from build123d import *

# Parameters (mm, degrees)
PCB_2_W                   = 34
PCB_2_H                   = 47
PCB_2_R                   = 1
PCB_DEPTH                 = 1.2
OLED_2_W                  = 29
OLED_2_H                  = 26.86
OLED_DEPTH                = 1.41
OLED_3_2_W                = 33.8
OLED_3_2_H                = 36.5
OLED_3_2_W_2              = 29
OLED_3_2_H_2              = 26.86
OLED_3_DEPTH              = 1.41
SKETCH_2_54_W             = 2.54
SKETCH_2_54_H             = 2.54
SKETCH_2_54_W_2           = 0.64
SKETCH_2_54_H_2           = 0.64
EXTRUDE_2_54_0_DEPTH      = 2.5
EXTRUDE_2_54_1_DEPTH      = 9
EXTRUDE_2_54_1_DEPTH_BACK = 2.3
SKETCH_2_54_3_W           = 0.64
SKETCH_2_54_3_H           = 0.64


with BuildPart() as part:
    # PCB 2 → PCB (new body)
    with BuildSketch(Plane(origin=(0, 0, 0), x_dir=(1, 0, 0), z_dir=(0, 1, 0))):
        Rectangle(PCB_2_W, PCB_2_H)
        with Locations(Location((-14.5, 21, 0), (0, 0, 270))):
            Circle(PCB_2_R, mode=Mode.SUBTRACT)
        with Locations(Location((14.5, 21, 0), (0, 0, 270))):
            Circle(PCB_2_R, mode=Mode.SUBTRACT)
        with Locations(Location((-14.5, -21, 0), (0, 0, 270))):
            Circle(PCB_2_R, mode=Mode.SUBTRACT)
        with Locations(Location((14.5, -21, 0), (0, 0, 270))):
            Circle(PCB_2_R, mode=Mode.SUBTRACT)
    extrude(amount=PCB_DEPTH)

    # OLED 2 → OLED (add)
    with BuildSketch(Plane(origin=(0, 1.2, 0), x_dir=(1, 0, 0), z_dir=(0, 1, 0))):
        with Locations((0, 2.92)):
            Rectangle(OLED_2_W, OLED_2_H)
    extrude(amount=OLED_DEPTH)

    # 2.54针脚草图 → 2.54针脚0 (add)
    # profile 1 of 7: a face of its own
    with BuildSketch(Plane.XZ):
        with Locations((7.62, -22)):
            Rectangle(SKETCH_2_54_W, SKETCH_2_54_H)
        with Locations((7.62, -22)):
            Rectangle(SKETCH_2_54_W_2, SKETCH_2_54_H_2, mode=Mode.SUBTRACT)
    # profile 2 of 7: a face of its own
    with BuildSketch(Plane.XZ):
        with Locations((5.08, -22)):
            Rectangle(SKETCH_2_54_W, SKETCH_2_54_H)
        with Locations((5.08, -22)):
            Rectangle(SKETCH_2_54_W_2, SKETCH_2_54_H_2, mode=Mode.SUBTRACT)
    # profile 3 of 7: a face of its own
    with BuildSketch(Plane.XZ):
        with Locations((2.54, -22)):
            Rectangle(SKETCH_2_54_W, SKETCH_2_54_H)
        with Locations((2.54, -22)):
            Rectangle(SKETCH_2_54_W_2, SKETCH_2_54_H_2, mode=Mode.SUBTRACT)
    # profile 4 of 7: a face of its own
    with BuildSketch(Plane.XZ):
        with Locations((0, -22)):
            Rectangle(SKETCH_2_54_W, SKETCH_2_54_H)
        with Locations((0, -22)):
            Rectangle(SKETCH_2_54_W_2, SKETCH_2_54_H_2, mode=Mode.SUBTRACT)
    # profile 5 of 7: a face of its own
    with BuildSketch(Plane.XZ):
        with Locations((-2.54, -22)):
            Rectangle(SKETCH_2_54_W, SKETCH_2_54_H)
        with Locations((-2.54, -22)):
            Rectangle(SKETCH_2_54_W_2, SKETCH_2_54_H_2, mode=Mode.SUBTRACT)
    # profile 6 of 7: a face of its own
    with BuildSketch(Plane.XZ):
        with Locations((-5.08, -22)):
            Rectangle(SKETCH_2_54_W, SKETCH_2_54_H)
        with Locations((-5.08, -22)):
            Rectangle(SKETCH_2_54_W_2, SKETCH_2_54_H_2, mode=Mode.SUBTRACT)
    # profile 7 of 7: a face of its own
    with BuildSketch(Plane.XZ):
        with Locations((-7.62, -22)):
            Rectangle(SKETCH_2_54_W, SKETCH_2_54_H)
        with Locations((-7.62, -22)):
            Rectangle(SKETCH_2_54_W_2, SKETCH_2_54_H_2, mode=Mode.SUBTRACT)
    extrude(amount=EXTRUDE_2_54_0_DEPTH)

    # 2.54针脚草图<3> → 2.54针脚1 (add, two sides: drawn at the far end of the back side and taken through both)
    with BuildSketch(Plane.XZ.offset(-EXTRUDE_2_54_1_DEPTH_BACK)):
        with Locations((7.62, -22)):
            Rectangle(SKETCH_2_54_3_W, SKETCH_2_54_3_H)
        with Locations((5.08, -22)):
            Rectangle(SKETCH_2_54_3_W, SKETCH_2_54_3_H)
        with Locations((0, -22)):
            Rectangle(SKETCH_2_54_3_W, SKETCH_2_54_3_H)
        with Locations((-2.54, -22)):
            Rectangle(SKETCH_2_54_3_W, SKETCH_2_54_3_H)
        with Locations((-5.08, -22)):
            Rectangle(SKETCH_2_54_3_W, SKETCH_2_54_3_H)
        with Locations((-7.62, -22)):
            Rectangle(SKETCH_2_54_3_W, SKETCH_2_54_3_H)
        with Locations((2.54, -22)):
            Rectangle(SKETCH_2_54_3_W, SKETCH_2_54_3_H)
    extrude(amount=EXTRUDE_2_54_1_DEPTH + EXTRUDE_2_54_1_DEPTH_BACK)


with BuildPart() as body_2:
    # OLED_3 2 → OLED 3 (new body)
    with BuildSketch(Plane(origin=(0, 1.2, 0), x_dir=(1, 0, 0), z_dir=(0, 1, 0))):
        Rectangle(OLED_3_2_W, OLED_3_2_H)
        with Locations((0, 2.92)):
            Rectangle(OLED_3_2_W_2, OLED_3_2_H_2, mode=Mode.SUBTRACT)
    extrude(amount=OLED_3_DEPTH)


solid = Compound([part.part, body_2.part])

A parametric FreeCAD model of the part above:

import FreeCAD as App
import Part
import Sketcher

V = App.Vector


def add_polygon(sketch, points):
    """Adds a closed chain of lines whose ends are joined by coincident constraints."""
    first, n = sketch.GeometryCount, len(points)
    for a, b in zip(points, points[1:] + points[:1]):
        sketch.addGeometry(Part.LineSegment(App.Vector(*a, 0), App.Vector(*b, 0)), False)
    for i in range(n):
        sketch.addConstraint(Sketcher.Constraint("Coincident", first + i, 2, first + (i + 1) % n, 1))

doc = App.newDocument("Part")
params = doc.addObject("Spreadsheet::Sheet", "Params")
for row, (alias, value) in enumerate([
    ("sketch1_diameter", "2 mm"),
    ("sketch1_width", "34 mm"),
    ("sketch1_height", "47 mm"),
    ("pad1_length", "1.2 mm"),
    ("sketch2_width", "29 mm"),
    ("sketch2_height", "26.86 mm"),
    ("pad2_length", "1.41 mm"),
    ("sketch3_width", "17.78 mm"),
    ("sketch3_width2", "0.64 mm"),
    ("sketch3_height", "2.54 mm"),
    ("pad3_length", "2.5 mm"),
    ("sketch4_width", "0.64 mm"),
    ("pad4_length", "9 mm"),
    ("pad4_length2", "2.3 mm"),
    ("sketch5_width", "29 mm"),
    ("sketch5_width2", "33.8 mm"),
    ("sketch5_height", "36.5 mm"),
    ("sketch5_height2", "26.86 mm"),
    ("pad5_length", "1.41 mm"),
], start=1):
    params.set(f"A{row}", alias)
    params.set(f"B{row}", "=" + value)
    params.setAlias(f"B{row}", alias)

body = doc.addObject("PartDesign::Body", "Body")

# Sketch on XZ plane
sketch1 = body.newObject("Sketcher::SketchObject", "Sketch")
sketch1.AttachmentSupport = (doc.getObject("XZ_Plane"), [""])
sketch1.MapMode = "FlatFace"
add_polygon(sketch1, [(-17, -23.5), (-17, 23.5), (17, 23.5), (17, -23.5)])  # lines 0-3
sketch1.addGeometry(Part.Circle(V(-14.5, 21, 0), V(0, 0, 1), 1), False)  # 4
sketch1.addGeometry(Part.Circle(V(14.5, 21, 0), V(0, 0, 1), 1), False)  # 5
sketch1.addGeometry(Part.Circle(V(-14.5, -21, 0), V(0, 0, 1), 1), False)  # 6
sketch1.addGeometry(Part.Circle(V(14.5, -21, 0), V(0, 0, 1), 1), False)  # 7
sketch1.addConstraint(Sketcher.Constraint("Vertical", 0))
sketch1.addConstraint(Sketcher.Constraint("Horizontal", 1))
sketch1.addConstraint(Sketcher.Constraint("Vertical", 2))
sketch1.addConstraint(Sketcher.Constraint("Horizontal", 3))
sketch1.addConstraint(Sketcher.Constraint("Equal", 4, 5))
sketch1.addConstraint(Sketcher.Constraint("Equal", 5, 6))
sketch1.addConstraint(Sketcher.Constraint("Equal", 6, 7))
sketch1.addConstraint(Sketcher.Constraint("Symmetric", 5, 3, 6, 3, -1, 1))
sketch1.addConstraint(Sketcher.Constraint("Symmetric", 4, 3, 7, 3, -1, 1))
sketch1.addConstraint(Sketcher.Constraint("Symmetric", 0, 2, 2, 2, -1, 1))
sketch1.addConstraint(Sketcher.Constraint("Symmetric", 4, 3, 5, 3, -2))
sketch1.addConstraint(Sketcher.Constraint("Diameter", 4, 2.0))
sketch1.addConstraint(Sketcher.Constraint("DistanceX", 1, 1, 1, 2, 34.0))
sketch1.addConstraint(Sketcher.Constraint("DistanceY", 0, 1, 0, 2, 47.0))
sketch1.addConstraint(Sketcher.Constraint("DistanceY", -1, 1, 4, 3, 21.0))
sketch1.addConstraint(Sketcher.Constraint("DistanceX", 4, 3, 5, 3, 29.0))
sketch1.setExpression("Constraints[15]", "Params.sketch1_diameter")
sketch1.setExpression("Constraints[16]", "Params.sketch1_width")
sketch1.setExpression("Constraints[17]", "Params.sketch1_height")
pad1 = body.newObject("PartDesign::Pad", "Pad")
pad1.Profile = sketch1
pad1.setExpression("Length", "Params.pad1_length")
pad1.Reversed = True

# Sketch on XZ plane
sketch2 = body.newObject("Sketcher::SketchObject", "Sketch001")
sketch2.AttachmentSupport = (doc.getObject("XZ_Plane"), [""])
sketch2.MapMode = "FlatFace"
sketch2.AttachmentOffset = App.Placement(V(0, 0, -1.2), App.Rotation())
add_polygon(sketch2, [(-14.5, -16.35), (-14.5, 10.51), (14.5, 10.51), (14.5, -16.35)])  # lines 0-3
sketch2.addConstraint(Sketcher.Constraint("Vertical", 0))
sketch2.addConstraint(Sketcher.Constraint("Horizontal", 1))
sketch2.addConstraint(Sketcher.Constraint("Vertical", 2))
sketch2.addConstraint(Sketcher.Constraint("Horizontal", 3))
sketch2.addConstraint(Sketcher.Constraint("DistanceX", 1, 1, 1, 2, 29.0))
sketch2.addConstraint(Sketcher.Constraint("DistanceY", 0, 1, 0, 2, 26.86))
sketch2.addConstraint(Sketcher.Constraint("DistanceX", 0, 2, -1, 1, 14.5))
sketch2.addConstraint(Sketcher.Constraint("DistanceY", -1, 1, 0, 2, 10.51))
sketch2.setExpression("Constraints[8]", "Params.sketch2_width")
sketch2.setExpression("Constraints[9]", "Params.sketch2_height")
pad2 = body.newObject("PartDesign::Pad", "Pad001")
pad2.Profile = sketch2
pad2.setExpression("Length", "Params.pad2_length")
pad2.Reversed = True

# Sketch on XZ plane
sketch3 = body.newObject("Sketcher::SketchObject", "Sketch002")
sketch3.AttachmentSupport = (doc.getObject("XZ_Plane"), [""])
sketch3.MapMode = "FlatFace"
add_polygon(sketch3, [(8.89, -23.27), (8.89, -20.73), (-8.89, -20.73), (-8.89, -23.27)])  # lines 0-3
add_polygon(sketch3, [(7.94, -22.32), (7.3, -22.32), (7.3, -21.68), (7.94, -21.68)])  # lines 4-7
add_polygon(sketch3, [(4.76, -22.32), (4.76, -21.68), (5.4, -21.68), (5.4, -22.32)])  # lines 8-11
add_polygon(sketch3, [(2.22, -22.32), (2.22, -21.68), (2.86, -21.68), (2.86, -22.32)])  # lines 12-15
add_polygon(sketch3, [(-0.32, -22.32), (-0.32, -21.68), (0.32, -21.68), (0.32, -22.32)])  # lines 16-19
add_polygon(sketch3, [(-2.86, -22.32), (-2.86, -21.68), (-2.22, -21.68), (-2.22, -22.32)])  # lines 20-23
add_polygon(sketch3, [(-5.4, -22.32), (-5.4, -21.68), (-4.76, -21.68), (-4.76, -22.32)])  # lines 24-27
add_polygon(sketch3, [(-7.94, -22.32), (-7.94, -21.68), (-7.3, -21.68), (-7.3, -22.32)])  # lines 28-31
sketch3.addConstraint(Sketcher.Constraint("Vertical", 0))
sketch3.addConstraint(Sketcher.Constraint("Horizontal", 1))
sketch3.addConstraint(Sketcher.Constraint("Vertical", 2))
sketch3.addConstraint(Sketcher.Constraint("Horizontal", 3))
sketch3.addConstraint(Sketcher.Constraint("Horizontal", 4))
sketch3.addConstraint(Sketcher.Constraint("Vertical", 5))
sketch3.addConstraint(Sketcher.Constraint("Horizontal", 6))
sketch3.addConstraint(Sketcher.Constraint("Vertical", 7))
sketch3.addConstraint(Sketcher.Constraint("Vertical", 8))
sketch3.addConstraint(Sketcher.Constraint("Horizontal", 9))
sketch3.addConstraint(Sketcher.Constraint("Vertical", 10))
sketch3.addConstraint(Sketcher.Constraint("Horizontal", 11))
sketch3.addConstraint(Sketcher.Constraint("Vertical", 12))
sketch3.addConstraint(Sketcher.Constraint("Horizontal", 13))
sketch3.addConstraint(Sketcher.Constraint("Vertical", 14))
sketch3.addConstraint(Sketcher.Constraint("Horizontal", 15))
sketch3.addConstraint(Sketcher.Constraint("Vertical", 16))
sketch3.addConstraint(Sketcher.Constraint("Horizontal", 17))
sketch3.addConstraint(Sketcher.Constraint("Vertical", 18))
sketch3.addConstraint(Sketcher.Constraint("Horizontal", 19))
sketch3.addConstraint(Sketcher.Constraint("Vertical", 20))
sketch3.addConstraint(Sketcher.Constraint("Horizontal", 21))
sketch3.addConstraint(Sketcher.Constraint("Vertical", 22))
sketch3.addConstraint(Sketcher.Constraint("Horizontal", 23))
sketch3.addConstraint(Sketcher.Constraint("Vertical", 24))
sketch3.addConstraint(Sketcher.Constraint("Horizontal", 25))
sketch3.addConstraint(Sketcher.Constraint("Vertical", 26))
sketch3.addConstraint(Sketcher.Constraint("Horizontal", 27))
sketch3.addConstraint(Sketcher.Constraint("Vertical", 28))
sketch3.addConstraint(Sketcher.Constraint("Horizontal", 29))
sketch3.addConstraint(Sketcher.Constraint("Vertical", 30))
sketch3.addConstraint(Sketcher.Constraint("Horizontal", 31))
sketch3.addConstraint(Sketcher.Constraint("Symmetric", 13, 2, 20, 2, -2))
sketch3.addConstraint(Sketcher.Constraint("Symmetric", 15, 2, 22, 2, -2))
sketch3.addConstraint(Sketcher.Constraint("Symmetric", 9, 2, 24, 2, -2))
sketch3.addConstraint(Sketcher.Constraint("Symmetric", 11, 2, 26, 2, -2))
sketch3.addConstraint(Sketcher.Constraint("Symmetric", 6, 2, 28, 2, -2))
sketch3.addConstraint(Sketcher.Constraint("Symmetric", 4, 2, 30, 2, -2))
sketch3.addConstraint(Sketcher.Constraint("Horizontal", 6, 2, 8, 2))
sketch3.addConstraint(Sketcher.Constraint("Horizontal", 7, 2, 10, 2))
sketch3.addConstraint(Sketcher.Constraint("Horizontal", 9, 2, 12, 2))
sketch3.addConstraint(Sketcher.Constraint("Horizontal", 11, 2, 14, 2))
sketch3.addConstraint(Sketcher.Constraint("Horizontal", 13, 2, 16, 2))
sketch3.addConstraint(Sketcher.Constraint("Horizontal", 15, 2, 18, 2))
sketch3.addConstraint(Sketcher.Constraint("Equal", 6, 9))
sketch3.addConstraint(Sketcher.Constraint("Equal", 11, 13))
sketch3.addConstraint(Sketcher.Constraint("Equal", 15, 17))
sketch3.addConstraint(Sketcher.Constraint("Equal", 31, 5))
sketch3.addConstraint(Sketcher.Constraint("DistanceX", 1, 2, 1, 1, 17.78))
sketch3.addConstraint(Sketcher.Constraint("DistanceX", 4, 2, 4, 1, 0.64))
sketch3.addConstraint(Sketcher.Constraint("DistanceY", 0, 1, 0, 2, 2.54))
sketch3.addConstraint(Sketcher.Constraint("DistanceX", -1, 1, 4, 2, 7.3))
sketch3.addConstraint(Sketcher.Constraint("DistanceX", -1, 1, 9, 2, 5.4))
sketch3.addConstraint(Sketcher.Constraint("DistanceX", 13, 2, 8, 2, 1.9))
sketch3.addConstraint(Sketcher.Constraint("DistanceX", 17, 2, 12, 2, 1.9))
sketch3.addConstraint(Sketcher.Constraint("DistanceX", -1, 1, 0, 2, 8.89))
sketch3.addConstraint(Sketcher.Constraint("DistanceY", 0, 2, -1, 1, 20.73))
sketch3.addConstraint(Sketcher.Constraint("DistanceY", 4, 2, -1, 1, 22.32))
sketch3.setExpression("Constraints[80]", "Params.sketch3_width")
sketch3.setExpression("Constraints[81]", "Params.sketch3_width2")
sketch3.setExpression("Constraints[82]", "Params.sketch3_height")
pad3 = body.newObject("PartDesign::Pad", "Pad002")
pad3.Profile = sketch3
pad3.setExpression("Length", "Params.pad3_length")

# Sketch on XZ plane
sketch4 = body.newObject("Sketcher::SketchObject", "Sketch003")
sketch4.AttachmentSupport = (doc.getObject("XZ_Plane"), [""])
sketch4.MapMode = "FlatFace"
add_polygon(sketch4, [(7.3, -21.68), (7.3, -22.32), (7.94, -22.32), (7.94, -21.68)])  # lines 0-3
add_polygon(sketch4, [(4.76, -21.68), (4.76, -22.32), (5.4, -22.32), (5.4, -21.68)])  # lines 4-7
add_polygon(sketch4, [(-0.32, -21.68), (-0.32, -22.32), (0.32, -22.32), (0.32, -21.68)])  # lines 8-11
add_polygon(sketch4, [(-2.86, -21.68), (-2.86, -22.32), (-2.22, -22.32), (-2.22, -21.68)])  # lines 12-15
add_polygon(sketch4, [(-5.4, -21.68), (-5.4, -22.32), (-4.76, -22.32), (-4.76, -21.68)])  # lines 16-19
add_polygon(sketch4, [(-7.94, -21.68), (-7.94, -22.32), (-7.3, -22.32), (-7.3, -21.68)])  # lines 20-23
add_polygon(sketch4, [(2.22, -21.68), (2.22, -22.32), (2.86, -22.32), (2.86, -21.68)])  # lines 24-27
sketch4.addConstraint(Sketcher.Constraint("Vertical", 0))
sketch4.addConstraint(Sketcher.Constraint("Horizontal", 1))
sketch4.addConstraint(Sketcher.Constraint("Vertical", 2))
sketch4.addConstraint(Sketcher.Constraint("Horizontal", 3))
sketch4.addConstraint(Sketcher.Constraint("Vertical", 4))
sketch4.addConstraint(Sketcher.Constraint("Horizontal", 5))
sketch4.addConstraint(Sketcher.Constraint("Vertical", 6))
sketch4.addConstraint(Sketcher.Constraint("Horizontal", 7))
sketch4.addConstraint(Sketcher.Constraint("Vertical", 8))
sketch4.addConstraint(Sketcher.Constraint("Horizontal", 9))
sketch4.addConstraint(Sketcher.Constraint("Vertical", 10))
sketch4.addConstraint(Sketcher.Constraint("Horizontal", 11))
sketch4.addConstraint(Sketcher.Constraint("Vertical", 12))
sketch4.addConstraint(Sketcher.Constraint("Horizontal", 13))
sketch4.addConstraint(Sketcher.Constraint("Vertical", 14))
sketch4.addConstraint(Sketcher.Constraint("Horizontal", 15))
sketch4.addConstraint(Sketcher.Constraint("Vertical", 16))
sketch4.addConstraint(Sketcher.Constraint("Horizontal", 17))
sketch4.addConstraint(Sketcher.Constraint("Vertical", 18))
sketch4.addConstraint(Sketcher.Constraint("Horizontal", 19))
sketch4.addConstraint(Sketcher.Constraint("Vertical", 20))
sketch4.addConstraint(Sketcher.Constraint("Horizontal", 21))
sketch4.addConstraint(Sketcher.Constraint("Vertical", 22))
sketch4.addConstraint(Sketcher.Constraint("Horizontal", 23))
sketch4.addConstraint(Sketcher.Constraint("Vertical", 24))
sketch4.addConstraint(Sketcher.Constraint("Horizontal", 25))
sketch4.addConstraint(Sketcher.Constraint("Vertical", 26))
sketch4.addConstraint(Sketcher.Constraint("Horizontal", 27))
sketch4.addConstraint(Sketcher.Constraint("Symmetric", 5, 2, 16, 2, -2))
sketch4.addConstraint(Sketcher.Constraint("Symmetric", 7, 2, 18, 2, -2))
sketch4.addConstraint(Sketcher.Constraint("Symmetric", 1, 2, 20, 2, -2))
sketch4.addConstraint(Sketcher.Constraint("Symmetric", 3, 2, 22, 2, -2))
sketch4.addConstraint(Sketcher.Constraint("Symmetric", 13, 2, 24, 2, -2))
sketch4.addConstraint(Sketcher.Constraint("Symmetric", 15, 2, 26, 2, -2))
sketch4.addConstraint(Sketcher.Constraint("Horizontal", 1, 2, 4, 2))
sketch4.addConstraint(Sketcher.Constraint("Horizontal", 3, 2, 6, 2))
sketch4.addConstraint(Sketcher.Constraint("Horizontal", 5, 2, 8, 2))
sketch4.addConstraint(Sketcher.Constraint("Horizontal", 7, 2, 10, 2))
sketch4.addConstraint(Sketcher.Constraint("Horizontal", 9, 2, 12, 2))
sketch4.addConstraint(Sketcher.Constraint("Horizontal", 11, 2, 14, 2))
sketch4.addConstraint(Sketcher.Constraint("Equal", 3, 5))
sketch4.addConstraint(Sketcher.Constraint("Equal", 7, 9))
sketch4.addConstraint(Sketcher.Constraint("Equal", 11, 13))
sketch4.addConstraint(Sketcher.Constraint("Equal", 27, 0))
sketch4.addConstraint(Sketcher.Constraint("DistanceX", 1, 1, 1, 2, 0.64))
sketch4.addConstraint(Sketcher.Constraint("DistanceX", -1, 1, 0, 2, 7.3))
sketch4.addConstraint(Sketcher.Constraint("DistanceX", -1, 1, 5, 2, 5.4))
sketch4.addConstraint(Sketcher.Constraint("DistanceX", 13, 2, 8, 2, 1.9))
sketch4.addConstraint(Sketcher.Constraint("DistanceX", 17, 2, 12, 2, 1.9))
sketch4.addConstraint(Sketcher.Constraint("DistanceY", 0, 2, -1, 1, 22.32))
sketch4.setExpression("Constraints[72]", "Params.sketch4_width")
pad4 = body.newObject("PartDesign::Pad", "Pad003")
pad4.Profile = sketch4
pad4.Type = "TwoLengths"
pad4.setExpression("Length", "Params.pad4_length")
pad4.setExpression("Length2", "Params.pad4_length2")
body2 = doc.addObject("PartDesign::Body", "Body001")

# Sketch on XZ plane
sketch5 = body2.newObject("Sketcher::SketchObject", "Sketch004")
sketch5.AttachmentSupport = (doc.getObject("XZ_Plane001"), [""])
sketch5.MapMode = "FlatFace"
sketch5.AttachmentOffset = App.Placement(V(0, 0, -1.2), App.Rotation())
add_polygon(sketch5, [(-16.9, -18.25), (-16.9, 18.25), (16.9, 18.25), (16.9, -18.25)])  # lines 0-3
add_polygon(sketch5, [(14.5, 10.51), (-14.5, 10.51), (-14.5, -16.35), (14.5, -16.35)])  # lines 4-7
sketch5.addConstraint(Sketcher.Constraint("Vertical", 0))
sketch5.addConstraint(Sketcher.Constraint("Horizontal", 1))
sketch5.addConstraint(Sketcher.Constraint("Vertical", 2))
sketch5.addConstraint(Sketcher.Constraint("Horizontal", 3))
sketch5.addConstraint(Sketcher.Constraint("Horizontal", 4))
sketch5.addConstraint(Sketcher.Constraint("Vertical", 5))
sketch5.addConstraint(Sketcher.Constraint("Horizontal", 6))
sketch5.addConstraint(Sketcher.Constraint("Vertical", 7))
sketch5.addConstraint(Sketcher.Constraint("Symmetric", 0, 2, 2, 2, -1, 1))
sketch5.addConstraint(Sketcher.Constraint("DistanceX", 4, 2, 4, 1, 29.0))
sketch5.addConstraint(Sketcher.Constraint("DistanceX", 1, 1, 1, 2, 33.8))
sketch5.addConstraint(Sketcher.Constraint("DistanceY", 0, 1, 0, 2, 36.5))
sketch5.addConstraint(Sketcher.Constraint("DistanceY", 5, 2, 5, 1, 26.86))
sketch5.addConstraint(Sketcher.Constraint("DistanceX", 4, 2, -1, 1, 14.5))
sketch5.addConstraint(Sketcher.Constraint("DistanceY", 3, 2, 5, 2, 1.9))
sketch5.setExpression("Constraints[17]", "Params.sketch5_width")
sketch5.setExpression("Constraints[18]", "Params.sketch5_width2")
sketch5.setExpression("Constraints[19]", "Params.sketch5_height")
sketch5.setExpression("Constraints[20]", "Params.sketch5_height2")
pad5 = body2.newObject("PartDesign::Pad", "Pad004")
pad5.Profile = sketch5
pad5.setExpression("Length", "Params.pad5_length")
pad5.Reversed = True

doc.recompute()
